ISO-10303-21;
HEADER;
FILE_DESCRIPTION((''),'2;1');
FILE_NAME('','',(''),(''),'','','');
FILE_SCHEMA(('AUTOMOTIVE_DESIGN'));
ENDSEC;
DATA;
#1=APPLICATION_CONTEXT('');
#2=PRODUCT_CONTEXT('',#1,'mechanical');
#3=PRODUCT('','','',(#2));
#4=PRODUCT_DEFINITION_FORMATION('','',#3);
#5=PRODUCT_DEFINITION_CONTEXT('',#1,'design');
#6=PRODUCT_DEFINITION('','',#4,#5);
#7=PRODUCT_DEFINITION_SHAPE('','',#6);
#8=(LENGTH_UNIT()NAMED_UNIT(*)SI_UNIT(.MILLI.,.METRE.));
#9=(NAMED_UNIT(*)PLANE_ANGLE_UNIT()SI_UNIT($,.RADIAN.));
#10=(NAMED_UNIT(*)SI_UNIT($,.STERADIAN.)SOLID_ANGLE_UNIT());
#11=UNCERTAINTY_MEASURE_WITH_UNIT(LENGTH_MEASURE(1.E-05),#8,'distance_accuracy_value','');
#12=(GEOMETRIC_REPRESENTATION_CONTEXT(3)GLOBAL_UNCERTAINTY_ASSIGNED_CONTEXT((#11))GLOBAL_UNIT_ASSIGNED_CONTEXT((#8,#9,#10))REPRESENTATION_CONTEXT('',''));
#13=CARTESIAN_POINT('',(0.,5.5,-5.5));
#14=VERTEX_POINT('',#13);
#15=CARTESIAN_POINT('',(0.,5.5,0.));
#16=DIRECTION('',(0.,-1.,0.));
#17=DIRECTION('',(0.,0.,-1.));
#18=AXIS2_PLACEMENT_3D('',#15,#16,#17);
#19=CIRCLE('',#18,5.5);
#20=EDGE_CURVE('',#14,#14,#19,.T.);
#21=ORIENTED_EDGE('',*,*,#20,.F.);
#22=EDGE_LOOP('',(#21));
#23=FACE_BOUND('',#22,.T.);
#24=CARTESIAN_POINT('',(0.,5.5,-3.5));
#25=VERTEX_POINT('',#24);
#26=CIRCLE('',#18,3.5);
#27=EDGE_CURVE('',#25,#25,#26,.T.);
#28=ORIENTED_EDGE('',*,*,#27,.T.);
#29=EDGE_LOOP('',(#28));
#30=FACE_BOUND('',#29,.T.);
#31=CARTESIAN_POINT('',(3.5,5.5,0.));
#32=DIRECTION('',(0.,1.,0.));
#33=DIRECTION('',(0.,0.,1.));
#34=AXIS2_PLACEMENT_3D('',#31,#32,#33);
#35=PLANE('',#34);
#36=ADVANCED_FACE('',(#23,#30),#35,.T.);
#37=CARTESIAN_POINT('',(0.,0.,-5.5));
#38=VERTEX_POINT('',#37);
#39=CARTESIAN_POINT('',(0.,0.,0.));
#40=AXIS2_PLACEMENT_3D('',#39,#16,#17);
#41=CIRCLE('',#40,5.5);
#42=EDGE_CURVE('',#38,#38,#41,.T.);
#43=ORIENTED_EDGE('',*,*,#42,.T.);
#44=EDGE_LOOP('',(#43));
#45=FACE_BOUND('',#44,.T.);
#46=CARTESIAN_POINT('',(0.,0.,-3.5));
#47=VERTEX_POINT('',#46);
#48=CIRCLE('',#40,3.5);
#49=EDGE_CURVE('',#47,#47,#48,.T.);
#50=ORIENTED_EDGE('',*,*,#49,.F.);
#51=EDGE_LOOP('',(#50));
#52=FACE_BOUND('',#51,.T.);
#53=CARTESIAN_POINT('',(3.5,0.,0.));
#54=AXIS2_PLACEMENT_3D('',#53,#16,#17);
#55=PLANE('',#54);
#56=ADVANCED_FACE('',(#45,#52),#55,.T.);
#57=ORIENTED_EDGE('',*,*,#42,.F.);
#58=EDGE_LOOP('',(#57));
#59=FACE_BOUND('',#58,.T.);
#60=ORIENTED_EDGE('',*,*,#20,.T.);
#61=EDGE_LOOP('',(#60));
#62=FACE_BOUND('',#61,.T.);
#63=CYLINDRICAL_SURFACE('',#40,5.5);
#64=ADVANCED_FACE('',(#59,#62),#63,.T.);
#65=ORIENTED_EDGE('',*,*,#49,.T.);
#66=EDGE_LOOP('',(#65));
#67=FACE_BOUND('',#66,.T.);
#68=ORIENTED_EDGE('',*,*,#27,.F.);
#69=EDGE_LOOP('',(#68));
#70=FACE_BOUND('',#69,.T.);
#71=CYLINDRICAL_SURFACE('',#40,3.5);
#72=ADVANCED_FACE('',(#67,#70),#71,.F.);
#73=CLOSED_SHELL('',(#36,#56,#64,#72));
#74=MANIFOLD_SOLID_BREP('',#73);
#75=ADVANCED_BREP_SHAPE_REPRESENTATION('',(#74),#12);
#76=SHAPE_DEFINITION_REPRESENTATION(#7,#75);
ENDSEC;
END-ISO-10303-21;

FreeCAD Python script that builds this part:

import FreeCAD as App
import Part
import Sketcher
from FreeCAD import Vector
Q = App.Units.Quantity


def add_polygon(sketch, points):
    """Adds a closed chain of lines whose ends are joined by coincident constraints."""
    first, n = sketch.GeometryCount, len(points)
    for a, b in zip(points, points[1:] + points[:1]):
        sketch.addGeometry(Part.LineSegment(App.Vector(*a, 0), App.Vector(*b, 0)), False)
    for i in range(n):
        sketch.addConstraint(Sketcher.Constraint("Coincident", first + i, 2, first + (i + 1) % n, 1))

doc = App.newDocument("Part")
body = doc.addObject("PartDesign::Body", "Body")

sketch1 = body.newObject("Sketcher::SketchObject", "Sketch")
sketch1.AttachmentSupport = (doc.getObject("XY_Plane"), [""])
sketch1.MapMode = "FlatFace"
add_polygon(sketch1, [(3.5, 5.5), (3.5, 0), (5.5, 0), (5.5, 5.5)])
sketch1.addConstraint([
    Sketcher.Constraint("Vertical", 0),
    Sketcher.Constraint("Horizontal", 1),
    Sketcher.Constraint("Vertical", 2),
    Sketcher.Constraint("Horizontal", 3),
    Sketcher.Constraint("PointOnObject", 0, 2, -1),
    Sketcher.Constraint("DistanceX", 1, 1, 1, 2, Q("2 mm")),
    Sketcher.Constraint("DistanceY", 0, 2, 0, 1, Q("5.5 mm")),
    Sketcher.Constraint("DistanceX", -1, 1, 0, 2, Q("3.5 mm")),
])
revolution = body.newObject("PartDesign::Revolution", "Revolution")
revolution.Profile = sketch1
revolution.ReferenceAxis = (sketch1, ["V_Axis"])
revolution.Angle = 360

doc.recompute()
